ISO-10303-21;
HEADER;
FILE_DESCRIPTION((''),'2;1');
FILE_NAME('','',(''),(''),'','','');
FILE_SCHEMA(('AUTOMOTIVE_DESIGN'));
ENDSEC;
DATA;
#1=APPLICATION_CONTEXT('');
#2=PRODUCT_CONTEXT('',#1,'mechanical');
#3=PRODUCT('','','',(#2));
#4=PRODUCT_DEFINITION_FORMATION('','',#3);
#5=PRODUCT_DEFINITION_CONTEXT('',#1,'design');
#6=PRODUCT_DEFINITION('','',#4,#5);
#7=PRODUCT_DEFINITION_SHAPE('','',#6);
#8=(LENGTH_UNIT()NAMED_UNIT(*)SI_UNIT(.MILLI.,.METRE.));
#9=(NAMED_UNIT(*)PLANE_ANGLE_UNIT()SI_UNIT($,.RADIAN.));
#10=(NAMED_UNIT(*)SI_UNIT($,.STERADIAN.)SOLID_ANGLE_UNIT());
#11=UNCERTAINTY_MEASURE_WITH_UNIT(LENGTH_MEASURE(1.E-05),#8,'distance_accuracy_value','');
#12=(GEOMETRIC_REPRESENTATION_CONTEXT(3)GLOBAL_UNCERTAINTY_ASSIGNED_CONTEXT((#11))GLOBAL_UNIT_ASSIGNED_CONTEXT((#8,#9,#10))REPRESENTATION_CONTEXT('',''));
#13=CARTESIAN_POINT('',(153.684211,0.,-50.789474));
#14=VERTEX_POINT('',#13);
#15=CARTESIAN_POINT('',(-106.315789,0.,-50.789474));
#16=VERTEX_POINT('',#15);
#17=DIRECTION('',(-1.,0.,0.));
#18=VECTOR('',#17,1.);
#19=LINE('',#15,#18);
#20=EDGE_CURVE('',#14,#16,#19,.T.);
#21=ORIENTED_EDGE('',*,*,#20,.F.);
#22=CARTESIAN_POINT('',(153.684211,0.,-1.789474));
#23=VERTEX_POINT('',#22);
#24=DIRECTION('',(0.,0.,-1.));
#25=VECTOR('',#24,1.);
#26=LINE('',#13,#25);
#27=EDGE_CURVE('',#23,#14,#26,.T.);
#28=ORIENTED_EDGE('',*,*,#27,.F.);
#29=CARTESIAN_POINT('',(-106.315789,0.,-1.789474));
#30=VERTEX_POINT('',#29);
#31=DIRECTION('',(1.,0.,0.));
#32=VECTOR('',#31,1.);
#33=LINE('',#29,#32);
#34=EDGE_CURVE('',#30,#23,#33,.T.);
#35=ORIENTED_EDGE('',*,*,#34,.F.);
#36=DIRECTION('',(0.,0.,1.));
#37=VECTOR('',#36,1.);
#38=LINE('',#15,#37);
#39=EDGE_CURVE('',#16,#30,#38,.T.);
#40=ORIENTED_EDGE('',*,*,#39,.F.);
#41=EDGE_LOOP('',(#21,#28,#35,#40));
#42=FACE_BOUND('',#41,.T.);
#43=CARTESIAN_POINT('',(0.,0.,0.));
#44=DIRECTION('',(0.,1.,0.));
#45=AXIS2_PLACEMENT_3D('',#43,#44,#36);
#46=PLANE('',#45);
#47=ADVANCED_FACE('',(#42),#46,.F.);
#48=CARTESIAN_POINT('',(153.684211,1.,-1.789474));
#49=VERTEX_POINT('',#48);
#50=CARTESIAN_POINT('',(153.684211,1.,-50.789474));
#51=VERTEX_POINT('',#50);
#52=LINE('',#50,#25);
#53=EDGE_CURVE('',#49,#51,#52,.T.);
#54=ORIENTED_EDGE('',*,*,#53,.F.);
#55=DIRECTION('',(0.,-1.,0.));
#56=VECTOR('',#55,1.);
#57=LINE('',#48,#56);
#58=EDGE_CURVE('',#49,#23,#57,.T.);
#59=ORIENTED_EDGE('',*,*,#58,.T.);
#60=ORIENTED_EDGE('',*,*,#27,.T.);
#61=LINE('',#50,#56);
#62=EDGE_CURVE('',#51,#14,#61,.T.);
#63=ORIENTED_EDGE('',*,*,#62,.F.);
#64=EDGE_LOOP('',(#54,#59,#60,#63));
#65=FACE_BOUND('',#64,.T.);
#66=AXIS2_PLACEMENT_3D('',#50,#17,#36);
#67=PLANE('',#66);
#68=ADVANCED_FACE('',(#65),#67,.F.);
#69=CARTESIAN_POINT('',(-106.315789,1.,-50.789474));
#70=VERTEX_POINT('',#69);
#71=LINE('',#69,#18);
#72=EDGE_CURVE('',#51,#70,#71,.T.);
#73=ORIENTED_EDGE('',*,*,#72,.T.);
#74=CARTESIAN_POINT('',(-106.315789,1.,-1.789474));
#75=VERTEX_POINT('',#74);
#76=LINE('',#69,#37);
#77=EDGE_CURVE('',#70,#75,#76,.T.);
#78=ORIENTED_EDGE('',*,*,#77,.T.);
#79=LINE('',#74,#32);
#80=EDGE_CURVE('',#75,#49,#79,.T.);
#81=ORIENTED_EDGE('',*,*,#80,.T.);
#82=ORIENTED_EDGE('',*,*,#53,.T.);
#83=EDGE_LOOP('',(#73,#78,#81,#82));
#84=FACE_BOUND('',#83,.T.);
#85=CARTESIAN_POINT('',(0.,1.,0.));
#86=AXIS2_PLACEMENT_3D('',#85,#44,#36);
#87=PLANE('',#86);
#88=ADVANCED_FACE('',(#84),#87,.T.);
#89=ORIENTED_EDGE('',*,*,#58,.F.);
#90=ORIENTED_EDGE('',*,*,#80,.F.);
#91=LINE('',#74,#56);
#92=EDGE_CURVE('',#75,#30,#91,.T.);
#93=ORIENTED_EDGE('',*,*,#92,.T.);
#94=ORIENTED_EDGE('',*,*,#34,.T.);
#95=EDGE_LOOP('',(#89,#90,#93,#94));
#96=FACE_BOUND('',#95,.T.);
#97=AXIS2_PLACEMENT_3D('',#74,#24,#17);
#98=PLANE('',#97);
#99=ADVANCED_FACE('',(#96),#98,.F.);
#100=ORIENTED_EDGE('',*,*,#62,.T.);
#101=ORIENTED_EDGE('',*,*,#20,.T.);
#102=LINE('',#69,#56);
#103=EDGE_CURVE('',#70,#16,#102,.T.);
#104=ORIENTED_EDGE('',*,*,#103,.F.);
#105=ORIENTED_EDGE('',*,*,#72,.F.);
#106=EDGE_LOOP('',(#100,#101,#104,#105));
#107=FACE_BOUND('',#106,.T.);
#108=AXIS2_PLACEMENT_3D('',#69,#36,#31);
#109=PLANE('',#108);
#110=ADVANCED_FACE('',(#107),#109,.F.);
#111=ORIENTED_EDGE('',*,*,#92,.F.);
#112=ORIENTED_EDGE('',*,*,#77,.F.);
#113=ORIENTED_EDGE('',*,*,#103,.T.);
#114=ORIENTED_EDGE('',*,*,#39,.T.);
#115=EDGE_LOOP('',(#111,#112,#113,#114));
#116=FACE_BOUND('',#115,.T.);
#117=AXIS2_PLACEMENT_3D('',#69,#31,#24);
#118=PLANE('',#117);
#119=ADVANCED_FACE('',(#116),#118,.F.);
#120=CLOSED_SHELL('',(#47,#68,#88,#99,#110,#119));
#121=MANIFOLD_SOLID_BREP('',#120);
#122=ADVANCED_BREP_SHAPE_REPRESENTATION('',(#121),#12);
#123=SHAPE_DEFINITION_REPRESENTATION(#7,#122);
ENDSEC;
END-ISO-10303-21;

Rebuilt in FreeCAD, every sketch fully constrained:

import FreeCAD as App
import Part
import Sketcher
from FreeCAD import Vector

doc = App.newDocument("Part")
body = doc.addObject("PartDesign::Body", "Body")

# Sketch on XZ plane
sketch1 = body.newObject("Sketcher::SketchObject", "Sketch")
sketch1.AttachmentSupport = (doc.getObject("XZ_Plane"), [""])
sketch1.MapMode = "FlatFace"
sketch1.addGeometry([
    Part.LineSegment(Vector(-106, -51, 0), Vector(-106, -2, 0)),
    Part.LineSegment(Vector(-106, -2, 0), Vector(154, -2, 0)),
    Part.LineSegment(Vector(154, -2, 0), Vector(154, -51, 0)),
    Part.LineSegment(Vector(154, -51, 0), Vector(-106, -51, 0)),
], False)
sketch1.addConstraint([
    Sketcher.Constraint("Coincident", 0, 2, 1, 1),
    Sketcher.Constraint("Coincident", 1, 2, 2, 1),
    Sketcher.Constraint("Coincident", 2, 2, 3, 1),
    Sketcher.Constraint("Coincident", 3, 2, 0, 1),
    Sketcher.Constraint("Vertical", 0),
    Sketcher.Constraint("Horizontal", 1),
    Sketcher.Constraint("Vertical", 2),
    Sketcher.Constraint("Horizontal", 3),
    Sketcher.Constraint("DistanceX", 1, 1, 1, 2, 260.0),
    Sketcher.Constraint("DistanceY", 0, 1, 0, 2, 49.0),
    Sketcher.Constraint("DistanceX", 0, 2, -1, 1, 106.315789),
    Sketcher.Constraint("DistanceY", 0, 2, -1, 1, 1.789474),
])
pad1 = body.newObject("PartDesign::Pad", "Pad")
pad1.Profile = sketch1
pad1.Length = 1
pad1.Reversed = True

doc.recompute()
